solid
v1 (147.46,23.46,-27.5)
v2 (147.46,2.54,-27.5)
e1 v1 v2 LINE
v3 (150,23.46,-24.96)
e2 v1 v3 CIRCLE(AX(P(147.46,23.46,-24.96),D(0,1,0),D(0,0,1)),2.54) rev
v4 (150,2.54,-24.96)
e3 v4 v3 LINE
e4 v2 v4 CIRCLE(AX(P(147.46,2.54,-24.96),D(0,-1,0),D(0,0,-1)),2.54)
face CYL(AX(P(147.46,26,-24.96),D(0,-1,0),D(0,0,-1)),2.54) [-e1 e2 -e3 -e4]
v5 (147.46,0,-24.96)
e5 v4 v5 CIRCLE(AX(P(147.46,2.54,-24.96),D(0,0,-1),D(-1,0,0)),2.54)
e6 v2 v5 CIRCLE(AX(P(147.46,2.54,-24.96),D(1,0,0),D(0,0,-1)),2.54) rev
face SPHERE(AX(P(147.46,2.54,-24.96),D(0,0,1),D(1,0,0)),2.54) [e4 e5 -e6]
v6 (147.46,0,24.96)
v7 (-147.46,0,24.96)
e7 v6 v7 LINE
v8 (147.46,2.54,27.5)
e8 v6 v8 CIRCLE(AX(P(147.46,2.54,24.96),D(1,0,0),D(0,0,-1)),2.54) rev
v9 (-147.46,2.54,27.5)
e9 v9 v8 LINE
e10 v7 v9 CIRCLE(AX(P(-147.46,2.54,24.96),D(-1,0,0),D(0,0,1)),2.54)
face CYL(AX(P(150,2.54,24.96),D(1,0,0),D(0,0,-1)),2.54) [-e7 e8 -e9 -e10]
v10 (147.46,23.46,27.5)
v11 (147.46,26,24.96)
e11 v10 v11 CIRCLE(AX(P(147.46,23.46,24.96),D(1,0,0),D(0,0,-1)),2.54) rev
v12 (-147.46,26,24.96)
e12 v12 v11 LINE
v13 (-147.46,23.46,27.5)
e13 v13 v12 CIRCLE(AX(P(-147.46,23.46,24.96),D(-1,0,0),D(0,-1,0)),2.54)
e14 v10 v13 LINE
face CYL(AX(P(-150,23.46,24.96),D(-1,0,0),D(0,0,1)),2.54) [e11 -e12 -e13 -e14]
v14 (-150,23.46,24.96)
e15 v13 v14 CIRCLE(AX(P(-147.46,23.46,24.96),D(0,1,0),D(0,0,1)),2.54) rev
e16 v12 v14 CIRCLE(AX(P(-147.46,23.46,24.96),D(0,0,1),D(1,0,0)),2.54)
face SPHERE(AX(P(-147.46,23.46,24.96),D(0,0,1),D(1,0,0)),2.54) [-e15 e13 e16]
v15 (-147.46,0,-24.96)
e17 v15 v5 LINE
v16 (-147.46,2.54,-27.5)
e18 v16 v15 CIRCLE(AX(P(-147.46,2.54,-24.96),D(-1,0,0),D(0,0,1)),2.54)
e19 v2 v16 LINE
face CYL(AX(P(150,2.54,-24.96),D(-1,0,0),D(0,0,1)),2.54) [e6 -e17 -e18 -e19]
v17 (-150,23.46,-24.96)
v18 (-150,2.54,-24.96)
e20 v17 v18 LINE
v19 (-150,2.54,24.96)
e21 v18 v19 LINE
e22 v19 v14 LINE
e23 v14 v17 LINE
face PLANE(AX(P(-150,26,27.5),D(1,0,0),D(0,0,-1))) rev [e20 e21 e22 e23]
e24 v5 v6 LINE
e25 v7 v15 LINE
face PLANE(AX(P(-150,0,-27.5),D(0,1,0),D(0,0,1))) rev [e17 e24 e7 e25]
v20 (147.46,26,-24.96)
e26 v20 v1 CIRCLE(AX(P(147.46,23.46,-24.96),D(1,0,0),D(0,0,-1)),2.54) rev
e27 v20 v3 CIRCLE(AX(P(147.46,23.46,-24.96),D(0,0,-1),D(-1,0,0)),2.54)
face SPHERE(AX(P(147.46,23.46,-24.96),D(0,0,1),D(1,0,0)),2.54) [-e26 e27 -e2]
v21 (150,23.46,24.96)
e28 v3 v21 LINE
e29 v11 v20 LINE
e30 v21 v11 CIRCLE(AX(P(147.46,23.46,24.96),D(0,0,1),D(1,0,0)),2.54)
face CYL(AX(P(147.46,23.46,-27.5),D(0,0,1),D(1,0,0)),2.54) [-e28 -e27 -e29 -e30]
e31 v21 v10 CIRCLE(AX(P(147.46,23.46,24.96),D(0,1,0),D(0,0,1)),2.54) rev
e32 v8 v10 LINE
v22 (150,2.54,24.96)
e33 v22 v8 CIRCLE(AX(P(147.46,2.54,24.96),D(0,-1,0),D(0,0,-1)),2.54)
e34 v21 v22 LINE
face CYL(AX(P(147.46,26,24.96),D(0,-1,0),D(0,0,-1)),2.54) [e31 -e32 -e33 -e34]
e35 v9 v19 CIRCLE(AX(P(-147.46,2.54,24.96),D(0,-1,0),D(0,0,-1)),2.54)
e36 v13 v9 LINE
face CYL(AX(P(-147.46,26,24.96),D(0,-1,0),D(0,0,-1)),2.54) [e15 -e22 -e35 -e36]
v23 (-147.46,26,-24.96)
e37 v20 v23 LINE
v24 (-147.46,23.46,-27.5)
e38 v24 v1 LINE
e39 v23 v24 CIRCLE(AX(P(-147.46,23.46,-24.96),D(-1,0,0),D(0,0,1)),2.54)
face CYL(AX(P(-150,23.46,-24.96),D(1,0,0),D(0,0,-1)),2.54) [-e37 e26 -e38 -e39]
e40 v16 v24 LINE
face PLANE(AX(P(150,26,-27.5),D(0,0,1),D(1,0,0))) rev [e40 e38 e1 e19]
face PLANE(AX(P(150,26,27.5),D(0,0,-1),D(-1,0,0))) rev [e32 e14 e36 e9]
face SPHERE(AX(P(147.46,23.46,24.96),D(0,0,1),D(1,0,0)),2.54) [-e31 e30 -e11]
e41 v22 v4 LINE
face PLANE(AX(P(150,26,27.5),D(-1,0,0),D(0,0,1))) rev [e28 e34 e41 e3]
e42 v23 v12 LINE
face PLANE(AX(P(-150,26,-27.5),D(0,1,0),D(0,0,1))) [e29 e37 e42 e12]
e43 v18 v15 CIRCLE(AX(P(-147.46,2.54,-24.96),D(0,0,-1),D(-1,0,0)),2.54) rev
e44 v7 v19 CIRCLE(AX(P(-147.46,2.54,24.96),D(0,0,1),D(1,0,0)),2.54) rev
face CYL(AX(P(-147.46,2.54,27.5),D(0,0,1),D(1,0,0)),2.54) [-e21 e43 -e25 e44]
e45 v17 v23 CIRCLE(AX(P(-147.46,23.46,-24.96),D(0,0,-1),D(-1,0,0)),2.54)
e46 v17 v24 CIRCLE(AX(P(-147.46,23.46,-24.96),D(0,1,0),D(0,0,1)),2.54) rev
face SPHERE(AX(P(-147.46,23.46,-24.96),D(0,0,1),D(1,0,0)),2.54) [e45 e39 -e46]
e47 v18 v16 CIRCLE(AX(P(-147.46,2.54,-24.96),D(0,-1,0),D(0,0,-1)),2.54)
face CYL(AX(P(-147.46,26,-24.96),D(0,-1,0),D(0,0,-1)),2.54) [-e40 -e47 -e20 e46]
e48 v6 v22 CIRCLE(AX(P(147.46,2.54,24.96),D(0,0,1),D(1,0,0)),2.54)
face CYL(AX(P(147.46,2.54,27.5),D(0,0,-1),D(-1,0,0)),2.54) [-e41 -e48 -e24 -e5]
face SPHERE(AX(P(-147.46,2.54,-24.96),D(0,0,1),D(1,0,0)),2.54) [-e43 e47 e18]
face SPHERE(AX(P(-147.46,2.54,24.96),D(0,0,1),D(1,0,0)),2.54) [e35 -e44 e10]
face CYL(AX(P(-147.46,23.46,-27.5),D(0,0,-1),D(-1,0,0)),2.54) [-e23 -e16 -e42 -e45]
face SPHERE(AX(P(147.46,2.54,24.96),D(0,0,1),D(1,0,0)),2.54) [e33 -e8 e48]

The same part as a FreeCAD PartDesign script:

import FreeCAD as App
import Part
import Sketcher

V = App.Vector
Q = App.Units.Quantity


def add_polygon(sketch, points):
    """Adds a closed chain of lines whose ends are joined by coincident constraints."""
    first, n = sketch.GeometryCount, len(points)
    for a, b in zip(points, points[1:] + points[:1]):
        sketch.addGeometry(Part.LineSegment(App.Vector(*a, 0), App.Vector(*b, 0)), False)
    for i in range(n):
        sketch.addConstraint(Sketcher.Constraint("Coincident", first + i, 2, first + (i + 1) % n, 1))

doc = App.newDocument("Part")
body = doc.addObject("PartDesign::Body", "Body")

sketch1 = body.newObject("Sketcher::SketchObject", "Sketch")
sketch1.AttachmentSupport = (doc.getObject("XZ_Plane"), [""])
sketch1.MapMode = "FlatFace"
add_polygon(sketch1, [(-150, -28), (-150, 28), (150, 28), (150, -28)])
sketch1.addConstraint([
    Sketcher.Constraint("Vertical", 0),
    Sketcher.Constraint("Horizontal", 1),
    Sketcher.Constraint("Vertical", 2),
    Sketcher.Constraint("Horizontal", 3),
    Sketcher.Constraint("Symmetric", 0, 2, 2, 2, -1, 1),
    Sketcher.Constraint("DistanceX", 1, 1, 1, 2, Q("300 mm")),
    Sketcher.Constraint("DistanceY", 0, 1, 0, 2, Q("55 mm")),
])
pad1 = body.newObject("PartDesign::Pad", "Pad")
pad1.Profile = sketch1
pad1.Length = 26
pad1.Reversed = True
doc.recompute()

fillet = body.newObject("PartDesign::Fillet", "Fillet")
fillet.Base = (pad1, ["Edge1"])
fillet.UseAllEdges = True
fillet.Radius = 2.54

doc.recompute()
